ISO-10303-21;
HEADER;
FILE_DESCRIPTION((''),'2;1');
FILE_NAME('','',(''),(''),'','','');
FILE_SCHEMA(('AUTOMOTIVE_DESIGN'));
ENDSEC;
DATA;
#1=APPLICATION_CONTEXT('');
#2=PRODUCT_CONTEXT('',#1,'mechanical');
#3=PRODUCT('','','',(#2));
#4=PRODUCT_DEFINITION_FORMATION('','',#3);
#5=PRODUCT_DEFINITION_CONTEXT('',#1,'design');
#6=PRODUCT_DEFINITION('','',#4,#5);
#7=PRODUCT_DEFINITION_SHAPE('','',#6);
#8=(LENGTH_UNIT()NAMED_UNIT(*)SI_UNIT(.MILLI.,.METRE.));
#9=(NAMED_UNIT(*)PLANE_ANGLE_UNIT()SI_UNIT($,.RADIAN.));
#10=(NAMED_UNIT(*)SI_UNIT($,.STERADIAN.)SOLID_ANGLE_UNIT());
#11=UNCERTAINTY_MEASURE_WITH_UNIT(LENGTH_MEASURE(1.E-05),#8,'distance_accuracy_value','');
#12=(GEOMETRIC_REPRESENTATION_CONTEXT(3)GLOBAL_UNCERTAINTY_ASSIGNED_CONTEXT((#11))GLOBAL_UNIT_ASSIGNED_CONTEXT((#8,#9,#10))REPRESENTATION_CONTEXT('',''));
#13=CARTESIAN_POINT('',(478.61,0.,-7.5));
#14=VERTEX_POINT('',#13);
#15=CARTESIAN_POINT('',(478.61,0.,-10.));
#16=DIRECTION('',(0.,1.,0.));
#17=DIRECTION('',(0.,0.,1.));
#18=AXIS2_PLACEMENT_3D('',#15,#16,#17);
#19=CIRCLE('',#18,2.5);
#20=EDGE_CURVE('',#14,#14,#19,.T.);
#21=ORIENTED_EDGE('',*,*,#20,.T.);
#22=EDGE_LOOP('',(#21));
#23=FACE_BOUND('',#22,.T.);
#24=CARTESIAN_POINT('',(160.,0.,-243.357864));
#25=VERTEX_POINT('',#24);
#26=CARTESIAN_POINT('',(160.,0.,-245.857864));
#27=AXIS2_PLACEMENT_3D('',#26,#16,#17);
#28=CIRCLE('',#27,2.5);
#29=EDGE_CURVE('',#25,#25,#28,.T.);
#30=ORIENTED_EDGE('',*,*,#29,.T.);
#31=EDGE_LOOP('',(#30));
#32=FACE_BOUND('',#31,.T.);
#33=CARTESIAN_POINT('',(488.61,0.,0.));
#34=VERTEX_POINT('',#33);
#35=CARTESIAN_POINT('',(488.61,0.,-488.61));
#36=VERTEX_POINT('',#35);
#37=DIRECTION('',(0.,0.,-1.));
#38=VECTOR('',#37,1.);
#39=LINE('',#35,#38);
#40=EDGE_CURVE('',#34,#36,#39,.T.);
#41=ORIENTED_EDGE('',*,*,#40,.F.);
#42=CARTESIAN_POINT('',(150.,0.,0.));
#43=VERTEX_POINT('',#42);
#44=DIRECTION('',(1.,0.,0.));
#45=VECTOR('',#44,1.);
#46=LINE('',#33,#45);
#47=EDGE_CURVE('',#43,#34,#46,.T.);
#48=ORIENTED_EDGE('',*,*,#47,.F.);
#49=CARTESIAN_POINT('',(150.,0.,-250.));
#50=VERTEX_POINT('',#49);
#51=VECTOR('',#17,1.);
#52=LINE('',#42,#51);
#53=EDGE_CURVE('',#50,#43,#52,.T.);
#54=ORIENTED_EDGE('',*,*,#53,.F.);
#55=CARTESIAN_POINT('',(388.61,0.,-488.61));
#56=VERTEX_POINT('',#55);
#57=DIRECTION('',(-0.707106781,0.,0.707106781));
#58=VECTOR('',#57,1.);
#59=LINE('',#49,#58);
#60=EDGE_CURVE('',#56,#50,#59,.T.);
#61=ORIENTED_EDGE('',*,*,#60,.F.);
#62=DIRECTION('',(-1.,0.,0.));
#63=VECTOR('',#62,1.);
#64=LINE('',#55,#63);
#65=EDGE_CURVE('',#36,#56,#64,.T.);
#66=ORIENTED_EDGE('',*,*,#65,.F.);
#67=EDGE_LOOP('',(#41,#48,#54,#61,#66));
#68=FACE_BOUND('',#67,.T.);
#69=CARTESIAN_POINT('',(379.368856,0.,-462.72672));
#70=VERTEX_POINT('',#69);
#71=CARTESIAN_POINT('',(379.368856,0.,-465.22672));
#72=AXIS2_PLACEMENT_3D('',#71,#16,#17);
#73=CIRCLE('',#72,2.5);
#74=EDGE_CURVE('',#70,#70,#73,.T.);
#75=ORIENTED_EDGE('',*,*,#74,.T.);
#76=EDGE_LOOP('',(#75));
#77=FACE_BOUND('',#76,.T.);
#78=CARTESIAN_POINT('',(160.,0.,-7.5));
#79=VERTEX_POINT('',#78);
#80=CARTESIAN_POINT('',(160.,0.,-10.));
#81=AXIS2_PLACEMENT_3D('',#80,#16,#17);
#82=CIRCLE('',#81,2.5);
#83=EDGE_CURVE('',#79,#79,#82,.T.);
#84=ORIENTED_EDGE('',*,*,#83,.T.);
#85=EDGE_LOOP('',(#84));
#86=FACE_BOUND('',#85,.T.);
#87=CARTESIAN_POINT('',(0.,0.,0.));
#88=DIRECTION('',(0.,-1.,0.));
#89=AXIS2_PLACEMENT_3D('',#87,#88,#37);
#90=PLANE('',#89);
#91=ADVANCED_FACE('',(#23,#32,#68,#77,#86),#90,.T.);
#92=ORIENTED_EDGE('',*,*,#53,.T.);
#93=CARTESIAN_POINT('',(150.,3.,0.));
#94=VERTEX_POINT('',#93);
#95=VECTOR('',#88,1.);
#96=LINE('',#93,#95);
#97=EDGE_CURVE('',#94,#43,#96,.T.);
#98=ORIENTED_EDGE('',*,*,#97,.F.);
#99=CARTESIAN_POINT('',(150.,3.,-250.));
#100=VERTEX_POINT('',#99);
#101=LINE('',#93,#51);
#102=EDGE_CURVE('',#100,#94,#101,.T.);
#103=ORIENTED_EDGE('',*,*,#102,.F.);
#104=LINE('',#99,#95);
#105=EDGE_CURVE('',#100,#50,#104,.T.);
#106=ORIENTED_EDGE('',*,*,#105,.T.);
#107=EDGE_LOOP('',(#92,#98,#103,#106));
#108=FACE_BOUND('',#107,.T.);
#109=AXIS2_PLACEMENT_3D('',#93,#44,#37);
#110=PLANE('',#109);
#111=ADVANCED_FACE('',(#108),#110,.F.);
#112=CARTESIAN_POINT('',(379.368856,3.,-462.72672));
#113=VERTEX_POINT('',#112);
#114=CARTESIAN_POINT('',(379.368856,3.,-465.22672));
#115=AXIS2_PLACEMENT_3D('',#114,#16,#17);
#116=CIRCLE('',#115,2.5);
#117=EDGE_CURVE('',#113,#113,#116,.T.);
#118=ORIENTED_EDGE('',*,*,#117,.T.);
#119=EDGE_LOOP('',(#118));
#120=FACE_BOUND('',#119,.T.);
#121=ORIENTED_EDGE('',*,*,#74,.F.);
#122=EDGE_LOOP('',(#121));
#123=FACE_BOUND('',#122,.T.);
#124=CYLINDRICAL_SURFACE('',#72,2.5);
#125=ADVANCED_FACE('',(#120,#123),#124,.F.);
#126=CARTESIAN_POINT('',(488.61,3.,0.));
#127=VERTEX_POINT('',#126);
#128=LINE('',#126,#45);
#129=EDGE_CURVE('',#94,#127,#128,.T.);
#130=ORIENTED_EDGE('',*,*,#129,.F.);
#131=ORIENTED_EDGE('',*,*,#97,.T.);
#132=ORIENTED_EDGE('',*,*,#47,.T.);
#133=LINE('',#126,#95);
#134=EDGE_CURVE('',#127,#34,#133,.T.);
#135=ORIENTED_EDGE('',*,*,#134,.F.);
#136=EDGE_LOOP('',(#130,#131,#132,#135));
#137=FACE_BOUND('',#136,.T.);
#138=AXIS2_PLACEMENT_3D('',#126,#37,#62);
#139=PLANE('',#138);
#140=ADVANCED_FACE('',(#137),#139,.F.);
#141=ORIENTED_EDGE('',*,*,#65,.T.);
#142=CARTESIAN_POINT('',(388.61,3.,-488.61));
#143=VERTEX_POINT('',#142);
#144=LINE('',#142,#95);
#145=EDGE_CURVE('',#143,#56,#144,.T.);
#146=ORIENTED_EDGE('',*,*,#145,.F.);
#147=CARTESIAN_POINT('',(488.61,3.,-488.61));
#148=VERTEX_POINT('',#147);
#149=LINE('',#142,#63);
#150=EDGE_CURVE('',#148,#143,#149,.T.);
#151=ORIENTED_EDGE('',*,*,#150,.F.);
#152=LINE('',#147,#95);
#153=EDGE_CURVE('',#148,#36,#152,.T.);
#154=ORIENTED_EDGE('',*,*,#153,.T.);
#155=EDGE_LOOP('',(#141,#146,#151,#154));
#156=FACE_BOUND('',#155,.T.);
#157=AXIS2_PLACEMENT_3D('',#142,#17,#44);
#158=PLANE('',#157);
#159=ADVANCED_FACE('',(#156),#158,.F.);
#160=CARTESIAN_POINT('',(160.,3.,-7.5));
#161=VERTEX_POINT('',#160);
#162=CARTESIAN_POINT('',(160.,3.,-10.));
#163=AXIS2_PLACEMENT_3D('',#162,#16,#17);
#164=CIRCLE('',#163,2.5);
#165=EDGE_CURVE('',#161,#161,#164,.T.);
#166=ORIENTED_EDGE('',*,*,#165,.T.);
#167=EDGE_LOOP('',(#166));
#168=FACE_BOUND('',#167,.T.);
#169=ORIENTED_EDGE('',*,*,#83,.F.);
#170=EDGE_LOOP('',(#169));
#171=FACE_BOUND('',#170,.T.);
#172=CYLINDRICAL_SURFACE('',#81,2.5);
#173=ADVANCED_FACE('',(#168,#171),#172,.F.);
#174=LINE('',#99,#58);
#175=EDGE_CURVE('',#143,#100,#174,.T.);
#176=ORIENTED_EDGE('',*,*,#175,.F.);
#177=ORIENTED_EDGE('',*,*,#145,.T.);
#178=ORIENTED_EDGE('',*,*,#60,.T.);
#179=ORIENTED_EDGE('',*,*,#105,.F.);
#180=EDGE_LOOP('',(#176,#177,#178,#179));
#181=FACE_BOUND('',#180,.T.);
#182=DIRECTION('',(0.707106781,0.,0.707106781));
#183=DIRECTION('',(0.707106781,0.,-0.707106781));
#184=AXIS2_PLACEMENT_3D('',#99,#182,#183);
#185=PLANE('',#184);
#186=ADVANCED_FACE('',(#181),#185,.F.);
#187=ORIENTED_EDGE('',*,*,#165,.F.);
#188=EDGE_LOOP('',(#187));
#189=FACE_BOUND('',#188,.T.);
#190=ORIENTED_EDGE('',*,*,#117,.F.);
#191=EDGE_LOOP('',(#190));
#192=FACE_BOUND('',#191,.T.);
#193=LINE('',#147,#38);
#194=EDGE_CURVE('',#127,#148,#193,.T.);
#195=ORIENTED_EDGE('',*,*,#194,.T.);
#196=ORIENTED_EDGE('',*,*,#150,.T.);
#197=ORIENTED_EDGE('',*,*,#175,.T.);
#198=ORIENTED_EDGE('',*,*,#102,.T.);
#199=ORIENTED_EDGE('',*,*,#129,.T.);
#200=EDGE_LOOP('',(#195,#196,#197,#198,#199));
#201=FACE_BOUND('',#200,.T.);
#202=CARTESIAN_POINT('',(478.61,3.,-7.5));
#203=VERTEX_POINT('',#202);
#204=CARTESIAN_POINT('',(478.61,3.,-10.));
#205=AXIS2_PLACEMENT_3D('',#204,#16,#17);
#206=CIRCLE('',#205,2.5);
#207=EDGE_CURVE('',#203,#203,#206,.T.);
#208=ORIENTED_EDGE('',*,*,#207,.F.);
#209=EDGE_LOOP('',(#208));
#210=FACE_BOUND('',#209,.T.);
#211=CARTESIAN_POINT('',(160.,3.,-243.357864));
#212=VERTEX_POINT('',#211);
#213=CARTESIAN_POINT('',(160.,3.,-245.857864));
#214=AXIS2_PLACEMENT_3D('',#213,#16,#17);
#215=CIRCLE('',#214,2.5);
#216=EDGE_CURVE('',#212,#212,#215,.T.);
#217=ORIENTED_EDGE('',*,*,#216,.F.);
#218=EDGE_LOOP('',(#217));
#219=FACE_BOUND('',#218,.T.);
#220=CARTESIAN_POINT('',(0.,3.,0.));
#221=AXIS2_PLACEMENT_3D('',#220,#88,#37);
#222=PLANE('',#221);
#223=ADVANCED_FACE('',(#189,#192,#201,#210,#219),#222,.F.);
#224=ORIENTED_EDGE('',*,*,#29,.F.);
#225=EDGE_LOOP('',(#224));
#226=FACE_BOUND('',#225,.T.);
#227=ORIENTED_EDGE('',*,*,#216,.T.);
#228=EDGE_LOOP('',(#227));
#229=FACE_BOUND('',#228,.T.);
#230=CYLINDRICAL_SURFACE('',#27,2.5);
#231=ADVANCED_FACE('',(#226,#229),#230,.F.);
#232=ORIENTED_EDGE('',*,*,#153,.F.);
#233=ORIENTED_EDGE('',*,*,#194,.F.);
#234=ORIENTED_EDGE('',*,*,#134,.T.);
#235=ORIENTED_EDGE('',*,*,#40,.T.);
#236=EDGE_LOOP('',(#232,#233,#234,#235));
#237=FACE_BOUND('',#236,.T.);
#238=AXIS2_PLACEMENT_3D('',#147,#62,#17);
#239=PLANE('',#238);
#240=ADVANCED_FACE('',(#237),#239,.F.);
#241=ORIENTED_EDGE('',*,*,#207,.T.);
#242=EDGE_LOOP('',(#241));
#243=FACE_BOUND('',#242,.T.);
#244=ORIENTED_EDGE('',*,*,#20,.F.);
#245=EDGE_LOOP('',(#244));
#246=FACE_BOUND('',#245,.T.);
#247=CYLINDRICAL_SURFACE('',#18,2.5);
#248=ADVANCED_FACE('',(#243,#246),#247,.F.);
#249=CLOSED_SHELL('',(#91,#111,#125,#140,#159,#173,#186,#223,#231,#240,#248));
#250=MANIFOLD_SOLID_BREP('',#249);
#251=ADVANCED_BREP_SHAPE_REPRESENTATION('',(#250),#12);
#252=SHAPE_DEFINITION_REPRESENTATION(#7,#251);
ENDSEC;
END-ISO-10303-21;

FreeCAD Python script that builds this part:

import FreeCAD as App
import Part
import Sketcher
Q = App.Units.Quantity

doc = App.newDocument("Part")
body = doc.addObject("PartDesign::Body", "Body")

# Sketch on XZ plane
sketch1 = body.newObject("Sketcher::SketchObject", "Sketch")
sketch1.AttachmentSupport = (doc.getObject("XZ_Plane"), [""])
sketch1.MapMode = "FlatFace"
sketch1.addGeometry([
    Part.LineSegment(App.Vector(388.61, -488.61, 0), App.Vector(150, -250, 0)),  # 0
    Part.LineSegment(App.Vector(150, -250, 0), App.Vector(150, 0, 0)),  # 1
    Part.LineSegment(App.Vector(150, 0, 0), App.Vector(488.61, 0, 0)),  # 2
    Part.LineSegment(App.Vector(488.61, 0, 0), App.Vector(488.61, -488.61, 0)),  # 3
    Part.LineSegment(App.Vector(488.61, -488.61, 0), App.Vector(388.61, -488.61, 0)),  # 4
], False)
sketch1.addConstraint([
    Sketcher.Constraint("Coincident", 0, 2, 1, 1),
    Sketcher.Constraint("Coincident", 1, 2, 2, 1),
    Sketcher.Constraint("Coincident", 2, 2, 3, 1),
    Sketcher.Constraint("Coincident", 3, 2, 4, 1),
    Sketcher.Constraint("Coincident", 4, 2, 0, 1),
    Sketcher.Constraint("Vertical", 1),
    Sketcher.Constraint("Horizontal", 2),
    Sketcher.Constraint("Vertical", 3),
    Sketcher.Constraint("Horizontal", 4),
    Sketcher.Constraint("PointOnObject", 1, 2, -1),
    Sketcher.Constraint("DistanceX", 4, 2, 4, 1, Q("100 mm")),
    Sketcher.Constraint("DistanceY", 1, 1, 1, 2, Q("250 mm")),
    Sketcher.Constraint("Angle", 0, Q("135 deg")),
    Sketcher.Constraint("DistanceX", -1, 1, 0, 2, Q("150 mm")),
    Sketcher.Constraint("DistanceX", 2, 1, 2, 2, Q("338.61 mm")),
])
pad1 = body.newObject("PartDesign::Pad", "Pad")
pad1.Profile = sketch1
pad1.Length = 3
pad1.Reversed = True

# Sketch on XZ plane
sketch2 = body.newObject("Sketcher::SketchObject", "Sketch001")
sketch2.AttachmentSupport = (doc.getObject("XZ_Plane"), [""])
sketch2.MapMode = "FlatFace"
sketch2.AttachmentOffset = App.Placement(App.Vector(0, 0, -3), App.Rotation())
sketch2.addGeometry([
    Part.Circle(App.Vector(160, -245.857864, 0), App.Vector(0, 0, 1), 2.5),
    Part.Circle(App.Vector(160, -10, 0), App.Vector(0, 0, 1), 2.5),
    Part.Circle(App.Vector(478.61, -10, 0), App.Vector(0, 0, 1), 2.5),
    Part.Circle(App.Vector(379.368856, -465.22672, 0), App.Vector(0, 0, 1), 2.5),
], False)
sketch2.addConstraint([
    Sketcher.Constraint("Equal", 0, 1),
    Sketcher.Constraint("Equal", 1, 2),
    Sketcher.Constraint("Equal", 2, 3),
    Sketcher.Constraint("Horizontal", 1, 3, 2, 3),
    Sketcher.Constraint("Vertical", 0, 3, 1, 3),
    Sketcher.Constraint("Diameter", 0, Q("5 mm")),
    Sketcher.Constraint("DistanceX", -1, 1, 0, 3, Q("160 mm")),
    Sketcher.Constraint("DistanceY", 1, 3, -1, 1, Q("10 mm")),
    Sketcher.Constraint("DistanceX", -1, 1, 2, 3, Q("478.61 mm")),
    Sketcher.Constraint("DistanceY", 3, 3, -1, 1, Q("465.22672 mm")),
    Sketcher.Constraint("DistanceY", 0, 3, -1, 1, Q("245.857864 mm")),
    Sketcher.Constraint("DistanceX", -1, 1, 3, 3, Q("379.368856 mm")),
])
pocket1 = body.newObject("PartDesign::Pocket", "Pocket")
pocket1.Profile = sketch2
pocket1.Type = "ThroughAll"
pocket1.Reversed = True

doc.recompute()
